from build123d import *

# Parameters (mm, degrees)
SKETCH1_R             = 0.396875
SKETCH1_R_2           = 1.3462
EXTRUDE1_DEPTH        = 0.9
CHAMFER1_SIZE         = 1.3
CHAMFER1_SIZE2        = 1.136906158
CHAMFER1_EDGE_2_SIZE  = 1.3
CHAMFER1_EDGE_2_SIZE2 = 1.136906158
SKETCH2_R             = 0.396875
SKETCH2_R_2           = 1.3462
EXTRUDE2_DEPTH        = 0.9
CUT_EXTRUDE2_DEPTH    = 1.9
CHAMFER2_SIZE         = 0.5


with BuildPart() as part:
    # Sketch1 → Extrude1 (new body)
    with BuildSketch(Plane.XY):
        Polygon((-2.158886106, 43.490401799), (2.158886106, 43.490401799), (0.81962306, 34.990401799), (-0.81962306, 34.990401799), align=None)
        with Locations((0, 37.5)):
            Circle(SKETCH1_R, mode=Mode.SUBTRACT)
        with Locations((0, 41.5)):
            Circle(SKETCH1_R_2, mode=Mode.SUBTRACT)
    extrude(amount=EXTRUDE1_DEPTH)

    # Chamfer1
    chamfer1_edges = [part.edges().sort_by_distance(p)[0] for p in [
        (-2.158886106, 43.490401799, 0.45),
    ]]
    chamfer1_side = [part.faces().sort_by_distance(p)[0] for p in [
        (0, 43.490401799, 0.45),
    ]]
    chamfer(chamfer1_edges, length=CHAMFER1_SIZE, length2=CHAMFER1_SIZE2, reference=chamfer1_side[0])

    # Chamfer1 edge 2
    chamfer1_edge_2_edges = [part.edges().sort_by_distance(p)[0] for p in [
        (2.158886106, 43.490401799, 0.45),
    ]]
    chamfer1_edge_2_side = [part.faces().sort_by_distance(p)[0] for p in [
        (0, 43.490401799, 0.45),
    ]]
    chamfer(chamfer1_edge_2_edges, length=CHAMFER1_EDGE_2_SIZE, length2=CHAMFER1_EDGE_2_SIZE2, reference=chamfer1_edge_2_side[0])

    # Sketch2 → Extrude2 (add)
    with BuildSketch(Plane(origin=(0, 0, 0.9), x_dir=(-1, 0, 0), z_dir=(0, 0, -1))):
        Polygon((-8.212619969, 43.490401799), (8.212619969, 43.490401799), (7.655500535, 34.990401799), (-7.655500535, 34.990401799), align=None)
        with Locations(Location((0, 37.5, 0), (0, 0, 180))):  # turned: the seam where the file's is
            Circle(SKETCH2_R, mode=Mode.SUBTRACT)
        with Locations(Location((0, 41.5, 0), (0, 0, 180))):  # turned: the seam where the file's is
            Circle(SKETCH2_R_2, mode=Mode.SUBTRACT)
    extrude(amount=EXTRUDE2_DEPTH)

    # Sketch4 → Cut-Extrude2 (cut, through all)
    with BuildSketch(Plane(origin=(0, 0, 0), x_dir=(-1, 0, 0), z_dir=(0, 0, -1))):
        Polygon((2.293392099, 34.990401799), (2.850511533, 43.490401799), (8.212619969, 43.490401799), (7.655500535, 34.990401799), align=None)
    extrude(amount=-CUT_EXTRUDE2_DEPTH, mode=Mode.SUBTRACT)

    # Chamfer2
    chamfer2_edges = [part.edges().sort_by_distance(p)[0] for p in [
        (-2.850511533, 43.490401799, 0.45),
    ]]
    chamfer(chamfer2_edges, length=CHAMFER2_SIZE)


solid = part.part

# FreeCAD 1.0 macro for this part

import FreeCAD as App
import Part
import Sketcher
from FreeCAD import Vector
Q = App.Units.Quantity


def edges_at(feature, points):
    """Names of the edges that pass closest to the given points."""
    edges = feature.Shape.Edges
    near = lambda p: min(range(len(edges)), key=lambda i: edges[i].distToShape(Part.Vertex(*p))[0])
    return sorted({f"Edge{near(p) + 1}" for p in points})


def add_polygon(sketch, points):
    """Adds a closed chain of lines whose ends are joined by coincident constraints."""
    first, n = sketch.GeometryCount, len(points)
    for a, b in zip(points, points[1:] + points[:1]):
        sketch.addGeometry(Part.LineSegment(App.Vector(*a, 0), App.Vector(*b, 0)), False)
    for i in range(n):
        sketch.addConstraint(Sketcher.Constraint("Coincident", first + i, 2, first + (i + 1) % n, 1))

doc = App.newDocument("Part")
body = doc.addObject("PartDesign::Body", "Body")

# Sketch on XY plane
sketch1 = body.newObject("Sketcher::SketchObject", "Sketch")
sketch1.AttachmentSupport = (doc.getObject("XY_Plane"), [""])
sketch1.MapMode = "FlatFace"
add_polygon(sketch1, [(2.16, 43.49), (-2.16, 43.49), (-0.82, 34.99), (0.82, 34.99)])  # lines 0-3
sketch1.addGeometry(Part.Circle(Vector(0, 37.5, 0), Vector(0, 0, 1), 0.4), False)  # 4
sketch1.addGeometry(Part.Circle(Vector(0, 41.5, 0), Vector(0, 0, 1), 1.35), False)  # 5
sketch1.addConstraint([
    Sketcher.Constraint("Horizontal", 0),
    Sketcher.Constraint("Horizontal", 2),
    Sketcher.Constraint("PointOnObject", 4, 3, -2),
    Sketcher.Constraint("PointOnObject", 5, 3, -2),
    Sketcher.Constraint("Equal", 1, 3),
    Sketcher.Constraint("DistanceY", 4, 3, 5, 3, 4.0),
    Sketcher.Constraint("Diameter", 5, 2.6924),
    Sketcher.Constraint("DistanceY", -1, 1, 4, 3, 37.5),
    Sketcher.Constraint("DistanceY", 1, 2, 0, 2, 8.5),
    Sketcher.Constraint("Diameter", 4, 0.79375),
    Sketcher.Constraint("DistanceY", -1, 1, 0, 2, 43.490402),
    Sketcher.Constraint("Distance", 1, 8.604861),
    Sketcher.Constraint("DistanceX", 0, 2, 0, 1, 4.317772),
    Sketcher.Constraint("DistanceX", 0, 2, -1, 1, 2.158886),
])
pad1 = body.newObject("PartDesign::Pad", "Pad")
pad1.Profile = sketch1
pad1.Length = 0.9
doc.recompute()

chamfer = body.newObject("PartDesign::Chamfer", "Chamfer")
chamfer.Base = (pad1, edges_at(pad1, [(-2.159, 43.49, 0.45)]))
chamfer.ChamferType = "Two distances"
chamfer.Size = 1.3
chamfer.Size2 = 1.136906
doc.recompute()

chamfer2 = body.newObject("PartDesign::Chamfer", "Chamfer001")
chamfer2.Base = (chamfer, edges_at(chamfer, [(2.159, 43.49, 0.45)]))
chamfer2.ChamferType = "Two distances"
chamfer2.Size = 1.3
chamfer2.Size2 = 1.136906

# Sketch on XY plane
sketch2 = body.newObject("Sketcher::SketchObject", "Sketch001")
sketch2.AttachmentSupport = (doc.getObject("XY_Plane"), [""])
sketch2.MapMode = "FlatFace"
sketch2.AttachmentOffset = App.Placement(Vector(0, 0, 0.9), App.Rotation())
add_polygon(sketch2, [(-8.21, 43.49), (8.21, 43.49), (7.66, 34.99), (-7.66, 34.99)])  # lines 0-3
sketch2.addGeometry(Part.Circle(Vector(0, 37.5, 0), Vector(0, 0, 1), 0.4), False)  # 4
sketch2.addGeometry(Part.Circle(Vector(0, 41.5, 0), Vector(0, 0, 1), 1.35), False)  # 5
sketch2.addConstraint([
    Sketcher.Constraint("Horizontal", 0),
    Sketcher.Constraint("Horizontal", 2),
    Sketcher.Constraint("PointOnObject", 4, 3, -2),
    Sketcher.Constraint("PointOnObject", 5, 3, -2),
    Sketcher.Constraint("Equal", 1, 3),
    Sketcher.Constraint("DistanceY", 4, 3, 5, 3, 4.0),
    Sketcher.Constraint("Diameter", 5, 2.6924),
    Sketcher.Constraint("DistanceY", -1, 1, 4, 3, 37.5),
    Sketcher.Constraint("Angle", 1, Q("-93.75 deg")),
    Sketcher.Constraint("DistanceY", 1, 2, 0, 2, 8.5),
    Sketcher.Constraint("Diameter", 4, 0.79375),
    Sketcher.Constraint("DistanceX", 2, 2, 2, 1, 15.311001),
    Sketcher.Constraint("DistanceY", -1, 1, 0, 2, 43.490402),
    Sketcher.Constraint("DistanceX", -1, 1, 1, 2, 7.655501),
])
pad2 = body.newObject("PartDesign::Pad", "Pad001")
pad2.Profile = sketch2
pad2.Length = 0.9
pad2.Reversed = True

# Sketch on XY plane
sketch3 = body.newObject("Sketcher::SketchObject", "Sketch002")
sketch3.AttachmentSupport = (doc.getObject("XY_Plane"), [""])
sketch3.MapMode = "FlatFace"
add_polygon(sketch3, [(-3, 43), (-2, 35), (-8, 35), (-8, 43)])  # lines 0-3
sketch3.addConstraint([
    Sketcher.Constraint("Horizontal", 1),
    Sketcher.Constraint("Horizontal", 3),
    Sketcher.Constraint("Parallel", 0, 2),
    Sketcher.Constraint("Angle", 0, Q("-86.25 deg")),
    Sketcher.Constraint("DistanceY", 1, 2, 2, 2, 8.5),
    Sketcher.Constraint("DistanceX", 1, 2, 1, 1, 5.362108),
    Sketcher.Constraint("DistanceY", -1, 1, 0, 2, 34.990402),
    Sketcher.Constraint("DistanceX", 1, 2, -1, 1, 7.655501),
])
pocket1 = body.newObject("PartDesign::Pocket", "Pocket")
pocket1.Profile = sketch3
pocket1.Type = "ThroughAll"
pocket1.Reversed = True
doc.recompute()

chamfer3 = body.newObject("PartDesign::Chamfer", "Chamfer002")
chamfer3.Base = (pocket1, edges_at(pocket1, [(-2.851, 43.49, 0.45)]))
chamfer3.Size = 0.5

doc.recompute()
